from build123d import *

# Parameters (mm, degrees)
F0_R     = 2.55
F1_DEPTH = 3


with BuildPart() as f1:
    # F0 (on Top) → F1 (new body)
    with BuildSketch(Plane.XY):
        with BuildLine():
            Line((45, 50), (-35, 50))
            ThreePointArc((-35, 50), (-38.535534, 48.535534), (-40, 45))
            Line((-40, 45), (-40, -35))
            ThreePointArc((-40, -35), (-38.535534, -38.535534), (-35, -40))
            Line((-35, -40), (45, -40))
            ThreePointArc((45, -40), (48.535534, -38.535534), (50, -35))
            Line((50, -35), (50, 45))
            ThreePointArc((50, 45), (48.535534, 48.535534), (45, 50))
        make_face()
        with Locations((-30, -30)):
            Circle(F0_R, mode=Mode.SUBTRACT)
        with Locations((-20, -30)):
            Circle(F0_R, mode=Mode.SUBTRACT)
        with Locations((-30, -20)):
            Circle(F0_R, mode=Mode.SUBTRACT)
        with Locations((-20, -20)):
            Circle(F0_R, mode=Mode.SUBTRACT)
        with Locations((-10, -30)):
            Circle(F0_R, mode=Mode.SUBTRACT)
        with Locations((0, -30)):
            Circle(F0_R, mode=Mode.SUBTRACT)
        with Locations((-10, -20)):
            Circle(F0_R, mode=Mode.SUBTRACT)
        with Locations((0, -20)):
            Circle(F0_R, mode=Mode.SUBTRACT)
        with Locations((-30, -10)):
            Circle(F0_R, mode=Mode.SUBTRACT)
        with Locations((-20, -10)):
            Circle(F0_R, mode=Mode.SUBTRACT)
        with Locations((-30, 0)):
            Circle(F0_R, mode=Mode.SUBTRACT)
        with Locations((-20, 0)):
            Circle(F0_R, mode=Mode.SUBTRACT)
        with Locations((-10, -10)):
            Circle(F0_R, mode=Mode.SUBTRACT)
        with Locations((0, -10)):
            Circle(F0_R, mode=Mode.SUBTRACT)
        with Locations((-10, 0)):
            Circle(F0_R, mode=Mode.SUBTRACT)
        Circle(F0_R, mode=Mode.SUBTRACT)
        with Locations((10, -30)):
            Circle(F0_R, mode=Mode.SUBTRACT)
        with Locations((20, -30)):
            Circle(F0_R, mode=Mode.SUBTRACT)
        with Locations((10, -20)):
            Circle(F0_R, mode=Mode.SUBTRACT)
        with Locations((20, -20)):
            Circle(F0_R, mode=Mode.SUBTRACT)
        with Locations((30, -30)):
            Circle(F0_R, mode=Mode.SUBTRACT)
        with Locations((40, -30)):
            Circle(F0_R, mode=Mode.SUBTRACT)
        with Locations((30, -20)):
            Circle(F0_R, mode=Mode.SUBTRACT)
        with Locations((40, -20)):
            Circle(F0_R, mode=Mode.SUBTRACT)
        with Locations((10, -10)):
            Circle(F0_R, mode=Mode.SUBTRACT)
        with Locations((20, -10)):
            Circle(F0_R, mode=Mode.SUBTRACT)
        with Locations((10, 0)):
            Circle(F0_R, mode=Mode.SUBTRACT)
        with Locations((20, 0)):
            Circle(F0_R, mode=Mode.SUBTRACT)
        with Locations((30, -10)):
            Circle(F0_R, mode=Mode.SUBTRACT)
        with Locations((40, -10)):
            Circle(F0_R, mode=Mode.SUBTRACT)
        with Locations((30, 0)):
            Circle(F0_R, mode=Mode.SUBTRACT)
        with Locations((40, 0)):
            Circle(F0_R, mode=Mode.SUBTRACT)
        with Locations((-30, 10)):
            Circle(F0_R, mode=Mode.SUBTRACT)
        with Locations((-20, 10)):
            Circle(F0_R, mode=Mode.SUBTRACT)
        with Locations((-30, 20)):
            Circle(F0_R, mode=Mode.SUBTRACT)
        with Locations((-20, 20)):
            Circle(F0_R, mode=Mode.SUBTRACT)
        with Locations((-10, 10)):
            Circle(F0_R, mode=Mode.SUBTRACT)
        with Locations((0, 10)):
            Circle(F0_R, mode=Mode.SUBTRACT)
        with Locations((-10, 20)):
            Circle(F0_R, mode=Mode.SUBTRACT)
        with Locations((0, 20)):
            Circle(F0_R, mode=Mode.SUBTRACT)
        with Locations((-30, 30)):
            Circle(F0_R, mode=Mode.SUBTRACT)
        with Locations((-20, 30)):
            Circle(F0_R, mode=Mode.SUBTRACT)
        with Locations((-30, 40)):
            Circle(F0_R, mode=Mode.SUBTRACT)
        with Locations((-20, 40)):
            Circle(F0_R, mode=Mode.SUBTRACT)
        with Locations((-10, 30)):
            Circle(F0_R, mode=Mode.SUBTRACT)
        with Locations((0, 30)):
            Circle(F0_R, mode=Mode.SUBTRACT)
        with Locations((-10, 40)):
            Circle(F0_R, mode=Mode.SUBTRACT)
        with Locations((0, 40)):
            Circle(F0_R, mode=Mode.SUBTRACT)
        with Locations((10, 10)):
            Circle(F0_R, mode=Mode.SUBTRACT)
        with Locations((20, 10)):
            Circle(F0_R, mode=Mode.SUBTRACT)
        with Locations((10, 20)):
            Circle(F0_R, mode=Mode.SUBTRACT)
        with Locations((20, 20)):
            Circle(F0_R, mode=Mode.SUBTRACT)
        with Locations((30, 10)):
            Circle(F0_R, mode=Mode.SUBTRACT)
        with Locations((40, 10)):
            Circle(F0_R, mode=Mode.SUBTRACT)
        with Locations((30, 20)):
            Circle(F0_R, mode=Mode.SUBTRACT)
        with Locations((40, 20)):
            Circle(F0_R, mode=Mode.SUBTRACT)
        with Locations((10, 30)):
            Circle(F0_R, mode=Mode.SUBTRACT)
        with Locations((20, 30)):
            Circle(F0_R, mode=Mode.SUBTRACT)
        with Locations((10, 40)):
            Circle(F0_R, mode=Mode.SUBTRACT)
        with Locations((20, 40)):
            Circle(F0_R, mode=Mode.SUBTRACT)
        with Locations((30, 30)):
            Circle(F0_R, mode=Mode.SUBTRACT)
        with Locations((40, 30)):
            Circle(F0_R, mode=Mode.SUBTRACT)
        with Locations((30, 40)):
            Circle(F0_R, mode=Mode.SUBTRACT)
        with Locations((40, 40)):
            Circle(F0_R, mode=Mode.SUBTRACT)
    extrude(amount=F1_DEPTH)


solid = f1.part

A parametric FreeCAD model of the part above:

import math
import FreeCAD as App
import Part
import Sketcher
Q = App.Units.Quantity

doc = App.newDocument("Part")
body = doc.addObject("PartDesign::Body", "Body")

# Sketch on XY plane
sketch1 = body.newObject("Sketcher::SketchObject", "Sketch")
sketch1.AttachmentSupport = (doc.getObject("XY_Plane"), [""])
sketch1.MapMode = "FlatFace"
sketch1.addGeometry([
    Part.LineSegment(App.Vector(45, 50, 0), App.Vector(-35, 50, 0)),  # 0
    Part.ArcOfCircle(Part.Circle(App.Vector(-35, 45, 0), App.Vector(0, 0, 1), 5), math.radians(90), math.radians(180)),  # 1
    Part.LineSegment(App.Vector(-40, 45, 0), App.Vector(-40, -35, 0)),  # 2
    Part.ArcOfCircle(Part.Circle(App.Vector(-35, -35, 0), App.Vector(0, 0, 1), 5), math.radians(180), math.radians(270)),  # 3
    Part.LineSegment(App.Vector(-35, -40, 0), App.Vector(45, -40, 0)),  # 4
    Part.ArcOfCircle(Part.Circle(App.Vector(45, -35, 0), App.Vector(0, 0, 1), 5), math.radians(-90), math.radians(0)),  # 5
    Part.LineSegment(App.Vector(50, -35, 0), App.Vector(50, 45, 0)),  # 6
    Part.ArcOfCircle(Part.Circle(App.Vector(45, 45, 0), App.Vector(0, 0, 1), 5), math.radians(0), math.radians(90)),  # 7
    Part.Circle(App.Vector(-30, -30, 0), App.Vector(0, 0, 1), 2.5),  # 8
    Part.Circle(App.Vector(-20, -30, 0), App.Vector(0, 0, 1), 2.5),  # 9
    Part.Circle(App.Vector(-30, -20, 0), App.Vector(0, 0, 1), 2.5),  # 10
    Part.Circle(App.Vector(-20, -20, 0), App.Vector(0, 0, 1), 2.5),  # 11
    Part.Circle(App.Vector(-10, -30, 0), App.Vector(0, 0, 1), 2.5),  # 12
    Part.Circle(App.Vector(0, -30, 0), App.Vector(0, 0, 1), 2.5),  # 13
    Part.Circle(App.Vector(-10, -20, 0), App.Vector(0, 0, 1), 2.5),  # 14
    Part.Circle(App.Vector(0, -20, 0), App.Vector(0, 0, 1), 2.5),  # 15
    Part.Circle(App.Vector(-30, -10, 0), App.Vector(0, 0, 1), 2.5),  # 16
    Part.Circle(App.Vector(-20, -10, 0), App.Vector(0, 0, 1), 2.5),  # 17
    Part.Circle(App.Vector(-30, 0, 0), App.Vector(0, 0, 1), 2.5),  # 18
    Part.Circle(App.Vector(-20, 0, 0), App.Vector(0, 0, 1), 2.5),  # 19
    Part.Circle(App.Vector(-10, -10, 0), App.Vector(0, 0, 1), 2.5),  # 20
    Part.Circle(App.Vector(0, -10, 0), App.Vector(0, 0, 1), 2.5),  # 21
    Part.Circle(App.Vector(-10, 0, 0), App.Vector(0, 0, 1), 2.5),  # 22
    Part.Circle(App.Vector(0, 0, 0), App.Vector(0, 0, 1), 2.5),  # 23
    Part.Circle(App.Vector(10, -30, 0), App.Vector(0, 0, 1), 2.5),  # 24
    Part.Circle(App.Vector(20, -30, 0), App.Vector(0, 0, 1), 2.5),  # 25
    Part.Circle(App.Vector(10, -20, 0), App.Vector(0, 0, 1), 2.5),  # 26
    Part.Circle(App.Vector(20, -20, 0), App.Vector(0, 0, 1), 2.5),  # 27
    Part.Circle(App.Vector(30, -30, 0), App.Vector(0, 0, 1), 2.5),  # 28
    Part.Circle(App.Vector(40, -30, 0), App.Vector(0, 0, 1), 2.5),  # 29
    Part.Circle(App.Vector(30, -20, 0), App.Vector(0, 0, 1), 2.5),  # 30
    Part.Circle(App.Vector(40, -20, 0), App.Vector(0, 0, 1), 2.5),  # 31
    Part.Circle(App.Vector(10, -10, 0), App.Vector(0, 0, 1), 2.5),  # 32
    Part.Circle(App.Vector(20, -10, 0), App.Vector(0, 0, 1), 2.5),  # 33
    Part.Circle(App.Vector(10, 0, 0), App.Vector(0, 0, 1), 2.5),  # 34
    Part.Circle(App.Vector(20, 0, 0), App.Vector(0, 0, 1), 2.5),  # 35
    Part.Circle(App.Vector(30, -10, 0), App.Vector(0, 0, 1), 2.5),  # 36
    Part.Circle(App.Vector(40, -10, 0), App.Vector(0, 0, 1), 2.5),  # 37
    Part.Circle(App.Vector(30, 0, 0), App.Vector(0, 0, 1), 2.5),  # 38
    Part.Circle(App.Vector(40, 0, 0), App.Vector(0, 0, 1), 2.5),  # 39
    Part.Circle(App.Vector(-30, 10, 0), App.Vector(0, 0, 1), 2.5),  # 40
    Part.Circle(App.Vector(-20, 10, 0), App.Vector(0, 0, 1), 2.5),  # 41
    Part.Circle(App.Vector(-30, 20, 0), App.Vector(0, 0, 1), 2.5),  # 42
    Part.Circle(App.Vector(-20, 20, 0), App.Vector(0, 0, 1), 2.5),  # 43
    Part.Circle(App.Vector(-10, 10, 0), App.Vector(0, 0, 1), 2.5),  # 44
    Part.Circle(App.Vector(0, 10, 0), App.Vector(0, 0, 1), 2.5),  # 45
    Part.Circle(App.Vector(-10, 20, 0), App.Vector(0, 0, 1), 2.5),  # 46
    Part.Circle(App.Vector(0, 20, 0), App.Vector(0, 0, 1), 2.5),  # 47
    Part.Circle(App.Vector(-30, 30, 0), App.Vector(0, 0, 1), 2.5),  # 48
    Part.Circle(App.Vector(-20, 30, 0), App.Vector(0, 0, 1), 2.5),  # 49
    Part.Circle(App.Vector(-30, 40, 0), App.Vector(0, 0, 1), 2.5),  # 50
    Part.Circle(App.Vector(-20, 40, 0), App.Vector(0, 0, 1), 2.5),  # 51
    Part.Circle(App.Vector(-10, 30, 0), App.Vector(0, 0, 1), 2.5),  # 52
    Part.Circle(App.Vector(0, 30, 0), App.Vector(0, 0, 1), 2.5),  # 53
    Part.Circle(App.Vector(-10, 40, 0), App.Vector(0, 0, 1), 2.5),  # 54
    Part.Circle(App.Vector(0, 40, 0), App.Vector(0, 0, 1), 2.5),  # 55
    Part.Circle(App.Vector(10, 10, 0), App.Vector(0, 0, 1), 2.5),  # 56
    Part.Circle(App.Vector(20, 10, 0), App.Vector(0, 0, 1), 2.5),  # 57
    Part.Circle(App.Vector(10, 20, 0), App.Vector(0, 0, 1), 2.5),  # 58
    Part.Circle(App.Vector(20, 20, 0), App.Vector(0, 0, 1), 2.5),  # 59
    Part.Circle(App.Vector(30, 10, 0), App.Vector(0, 0, 1), 2.5),  # 60
    Part.Circle(App.Vector(40, 10, 0), App.Vector(0, 0, 1), 2.5),  # 61
    Part.Circle(App.Vector(30, 20, 0), App.Vector(0, 0, 1), 2.5),  # 62
    Part.Circle(App.Vector(40, 20, 0), App.Vector(0, 0, 1), 2.5),  # 63
    Part.Circle(App.Vector(10, 30, 0), App.Vector(0, 0, 1), 2.5),  # 64
    Part.Circle(App.Vector(20, 30, 0), App.Vector(0, 0, 1), 2.5),  # 65
    Part.Circle(App.Vector(10, 40, 0), App.Vector(0, 0, 1), 2.5),  # 66
    Part.Circle(App.Vector(20, 40, 0), App.Vector(0, 0, 1), 2.5),  # 67
    Part.Circle(App.Vector(30, 30, 0), App.Vector(0, 0, 1), 2.5),  # 68
    Part.Circle(App.Vector(40, 30, 0), App.Vector(0, 0, 1), 2.5),  # 69
    Part.Circle(App.Vector(30, 40, 0), App.Vector(0, 0, 1), 2.5),  # 70
    Part.Circle(App.Vector(40, 40, 0), App.Vector(0, 0, 1), 2.5),  # 71
], False)
sketch1.addConstraint([
    Sketcher.Constraint("Tangent", 0, 2, 1, 1),
    Sketcher.Constraint("Tangent", 1, 2, 2, 1),
    Sketcher.Constraint("Tangent", 2, 2, 3, 1),
    Sketcher.Constraint("Tangent", 3, 2, 4, 1),
    Sketcher.Constraint("Tangent", 4, 2, 5, 1),
    Sketcher.Constraint("Tangent", 5, 2, 6, 1),
    Sketcher.Constraint("Tangent", 6, 2, 7, 1),
    Sketcher.Constraint("Tangent", 7, 2, 0, 1),
    Sketcher.Constraint("Horizontal", 0),
    Sketcher.Constraint("Vertical", 2),
    Sketcher.Constraint("Horizontal", 4),
    Sketcher.Constraint("Vertical", 6),
    Sketcher.Constraint("Coincident", 23, 3, -1, 1),
    Sketcher.Constraint("Equal", 1, 3),
    Sketcher.Constraint("Equal", 3, 5),
    Sketcher.Constraint("Equal", 5, 7),
    Sketcher.Constraint("Equal", 8, 9),
    Sketcher.Constraint("Equal", 9, 10),
    Sketcher.Constraint("Equal", 10, 11),
    Sketcher.Constraint("Equal", 11, 12),
    Sketcher.Constraint("Equal", 12, 13),
    Sketcher.Constraint("Equal", 13, 14),
    Sketcher.Constraint("Equal", 14, 15),
    Sketcher.Constraint("Equal", 15, 16),
    Sketcher.Constraint("Equal", 16, 17),
    Sketcher.Constraint("Equal", 17, 18),
    Sketcher.Constraint("Equal", 18, 19),
    Sketcher.Constraint("Equal", 19, 20),
    Sketcher.Constraint("Equal", 20, 21),
    Sketcher.Constraint("Equal", 21, 22),
    Sketcher.Constraint("Equal", 22, 23),
    Sketcher.Constraint("Equal", 23, 24),
    Sketcher.Constraint("Equal", 24, 25),
    Sketcher.Constraint("Equal", 25, 26),
    Sketcher.Constraint("Equal", 26, 27),
    Sketcher.Constraint("Equal", 27, 28),
    Sketcher.Constraint("Equal", 28, 29),
    Sketcher.Constraint("Equal", 29, 30),
    Sketcher.Constraint("Equal", 30, 31),
    Sketcher.Constraint("Equal", 31, 32),
    Sketcher.Constraint("Equal", 32, 33),
    Sketcher.Constraint("Equal", 33, 34),
    Sketcher.Constraint("Equal", 34, 35),
    Sketcher.Constraint("Equal", 35, 36),
    Sketcher.Constraint("Equal", 36, 37),
    Sketcher.Constraint("Equal", 37, 38),
    Sketcher.Constraint("Equal", 38, 39),
    Sketcher.Constraint("Equal", 39, 40),
    Sketcher.Constraint("Equal", 40, 41),
    Sketcher.Constraint("Equal", 41, 42),
    Sketcher.Constraint("Equal", 42, 43),
    Sketcher.Constraint("Equal", 43, 44),
    Sketcher.Constraint("Equal", 44, 45),
    Sketcher.Constraint("Equal", 45, 46),
    Sketcher.Constraint("Equal", 46, 47),
    Sketcher.Constraint("Equal", 47, 48),
    Sketcher.Constraint("Equal", 48, 49),
    Sketcher.Constraint("Equal", 49, 50),
    Sketcher.Constraint("Equal", 50, 51),
    Sketcher.Constraint("Equal", 51, 52),
    Sketcher.Constraint("Equal", 52, 53),
    Sketcher.Constraint("Equal", 53, 54),
    Sketcher.Constraint("Equal", 54, 55),
    Sketcher.Constraint("Equal", 55, 56),
    Sketcher.Constraint("Equal", 56, 57),
    Sketcher.Constraint("Equal", 57, 58),
    Sketcher.Constraint("Equal", 58, 59),
    Sketcher.Constraint("Equal", 59, 60),
    Sketcher.Constraint("Equal", 60, 61),
    Sketcher.Constraint("Equal", 61, 62),
    Sketcher.Constraint("Equal", 62, 63),
    Sketcher.Constraint("Equal", 63, 64),
    Sketcher.Constraint("Equal", 64, 65),
    Sketcher.Constraint("Equal", 65, 66),
    Sketcher.Constraint("Equal", 66, 67),
    Sketcher.Constraint("Equal", 67, 68),
    Sketcher.Constraint("Equal", 68, 69),
    Sketcher.Constraint("Equal", 69, 70),
    Sketcher.Constraint("Equal", 70, 71),
    Sketcher.Constraint("Symmetric", 22, 3, 34, 3, -1, 1),
    Sketcher.Constraint("Symmetric", 19, 3, 35, 3, -1, 1),
    Sketcher.Constraint("Symmetric", 18, 3, 38, 3, -1, 1),
    Sketcher.Constraint("Symmetric", 36, 3, 40, 3, -1, 1),
    Sketcher.Constraint("Symmetric", 33, 3, 41, 3, -1, 1),
    Sketcher.Constraint("Symmetric", 30, 3, 42, 3, -1, 1),
    Sketcher.Constraint("Symmetric", 27, 3, 43, 3, -1, 1),
    Sketcher.Constraint("Symmetric", 32, 3, 44, 3, -1, 1),
    Sketcher.Constraint("Symmetric", 21, 3, 45, 3, -1, 1),
    Sketcher.Constraint("Symmetric", 26, 3, 46, 3, -1, 1),
    Sketcher.Constraint("Symmetric", 15, 3, 47, 3, -1, 1),
    Sketcher.Constraint("Symmetric", 28, 3, 48, 3, -1, 1),
    Sketcher.Constraint("Symmetric", 25, 3, 49, 3, -1, 1),
    Sketcher.Constraint("Symmetric", 24, 3, 52, 3, -1, 1),
    Sketcher.Constraint("Symmetric", 13, 3, 53, 3, -1, 1),
    Sketcher.Constraint("Symmetric", 20, 3, 56, 3, -1, 1),
    Sketcher.Constraint("Symmetric", 17, 3, 57, 3, -1, 1),
    Sketcher.Constraint("Symmetric", 14, 3, 58, 3, -1, 1),
    Sketcher.Constraint("Symmetric", 11, 3, 59, 3, -1, 1),
    Sketcher.Constraint("Symmetric", 16, 3, 60, 3, -1, 1),
    Sketcher.Constraint("Symmetric", 10, 3, 62, 3, -1, 1),
    Sketcher.Constraint("Symmetric", 12, 3, 64, 3, -1, 1),
    Sketcher.Constraint("Symmetric", 9, 3, 65, 3, -1, 1),
    Sketcher.Constraint("Symmetric", 8, 3, 68, 3, -1, 1),
    Sketcher.Constraint("Symmetric", 12, 3, 24, 3, -2),
    Sketcher.Constraint("Symmetric", 9, 3, 25, 3, -2),
    Sketcher.Constraint("Symmetric", 14, 3, 26, 3, -2),
    Sketcher.Constraint("Symmetric", 11, 3, 27, 3, -2),
    Sketcher.Constraint("Symmetric", 8, 3, 28, 3, -2),
    Sketcher.Constraint("Symmetric", 10, 3, 30, 3, -2),
    Sketcher.Constraint("Symmetric", 20, 3, 32, 3, -2),
    Sketcher.Constraint("Symmetric", 17, 3, 33, 3, -2),
    Sketcher.Constraint("Symmetric", 16, 3, 36, 3, -2),
    Sketcher.Constraint("Symmetric", 54, 3, 66, 3, -2),
    Sketcher.Constraint("Symmetric", 51, 3, 67, 3, -2),
    Sketcher.Constraint("Symmetric", 50, 3, 70, 3, -2),
    Sketcher.Constraint("Symmetric", 37, 3, 61, 3, -1),
    Sketcher.Constraint("Symmetric", 31, 3, 63, 3, -1),
    Sketcher.Constraint("Symmetric", 29, 3, 69, 3, -1),
    Sketcher.Constraint("PointOnObject", 13, 3, -2),
    Sketcher.Constraint("PointOnObject", 15, 3, -2),
    Sketcher.Constraint("PointOnObject", 18, 3, -1),
    Sketcher.Constraint("PointOnObject", 19, 3, -1),
    Sketcher.Constraint("PointOnObject", 21, 3, -2),
    Sketcher.Constraint("PointOnObject", 22, 3, -1),
    Sketcher.Constraint("PointOnObject", 39, 3, -1),
    Sketcher.Constraint("PointOnObject", 55, 3, -2),
    Sketcher.Constraint("Horizontal", 8, 3, 9, 3),
    Sketcher.Constraint("Horizontal", 10, 3, 11, 3),
    Sketcher.Constraint("Horizontal", 9, 3, 12, 3),
    Sketcher.Constraint("Horizontal", 12, 3, 13, 3),
    Sketcher.Constraint("Horizontal", 11, 3, 14, 3),
    Sketcher.Constraint("Horizontal", 14, 3, 15, 3),
    Sketcher.Constraint("Horizontal", 16, 3, 17, 3),
    Sketcher.Constraint("Horizontal", 17, 3, 20, 3),
    Sketcher.Constraint("Horizontal", 20, 3, 21, 3),
    Sketcher.Constraint("Horizontal", 28, 3, 29, 3),
    Sketcher.Constraint("Horizontal", 30, 3, 31, 3),
    Sketcher.Constraint("Horizontal", 36, 3, 37, 3),
    Sketcher.Constraint("Horizontal", 50, 3, 51, 3),
    Sketcher.Constraint("Horizontal", 51, 3, 54, 3),
    Sketcher.Constraint("Horizontal", 54, 3, 55, 3),
    Sketcher.Constraint("Horizontal", 70, 3, 71, 3),
    Sketcher.Constraint("Vertical", 8, 3, 10, 3),
    Sketcher.Constraint("Vertical", 9, 3, 11, 3),
    Sketcher.Constraint("Vertical", 12, 3, 14, 3),
    Sketcher.Constraint("Vertical", 10, 3, 16, 3),
    Sketcher.Constraint("Vertical", 11, 3, 17, 3),
    Sketcher.Constraint("Vertical", 16, 3, 18, 3),
    Sketcher.Constraint("Vertical", 17, 3, 19, 3),
    Sketcher.Constraint("Vertical", 14, 3, 20, 3),
    Sketcher.Constraint("Vertical", 20, 3, 22, 3),
    Sketcher.Constraint("Vertical", 29, 3, 31, 3),
    Sketcher.Constraint("Vertical", 31, 3, 37, 3),
    Sketcher.Constraint("Vertical", 37, 3, 39, 3),
    Sketcher.Constraint("Vertical", 48, 3, 50, 3),
    Sketcher.Constraint("Vertical", 49, 3, 51, 3),
    Sketcher.Constraint("Vertical", 52, 3, 54, 3),
    Sketcher.Constraint("Vertical", 69, 3, 71, 3),
    Sketcher.Constraint("Equal", 4, 2),
    Sketcher.Constraint("Radius", 1, Q("5 mm")),
    Sketcher.Constraint("Diameter", 8, Q("5.1 mm")),
    Sketcher.Constraint("DistanceX", 0, 2, 0, 1, Q("80 mm")),
    Sketcher.Constraint("DistanceX", 1, 3, -1, 1, Q("35 mm")),
    Sketcher.Constraint("DistanceY", -1, 1, 1, 3, Q("45 mm")),
    Sketcher.Constraint("DistanceX", 8, 3, -1, 1, Q("30 mm")),
    Sketcher.Constraint("DistanceY", 8, 3, -1, 1, Q("30 mm")),
    Sketcher.Constraint("DistanceX", 9, 3, -1, 1, Q("20 mm")),
    Sketcher.Constraint("DistanceY", 10, 3, -1, 1, Q("20 mm")),
    Sketcher.Constraint("DistanceX", 12, 3, -1, 1, Q("10 mm")),
    Sketcher.Constraint("DistanceY", 16, 3, -1, 1, Q("10 mm")),
    Sketcher.Constraint("DistanceX", -1, 1, 29, 3, Q("40 mm")),
    Sketcher.Constraint("DistanceY", -1, 1, 50, 3, Q("40 mm")),
])
pad1 = body.newObject("PartDesign::Pad", "Pad")
pad1.Profile = sketch1
pad1.Length = 3

doc.recompute()
